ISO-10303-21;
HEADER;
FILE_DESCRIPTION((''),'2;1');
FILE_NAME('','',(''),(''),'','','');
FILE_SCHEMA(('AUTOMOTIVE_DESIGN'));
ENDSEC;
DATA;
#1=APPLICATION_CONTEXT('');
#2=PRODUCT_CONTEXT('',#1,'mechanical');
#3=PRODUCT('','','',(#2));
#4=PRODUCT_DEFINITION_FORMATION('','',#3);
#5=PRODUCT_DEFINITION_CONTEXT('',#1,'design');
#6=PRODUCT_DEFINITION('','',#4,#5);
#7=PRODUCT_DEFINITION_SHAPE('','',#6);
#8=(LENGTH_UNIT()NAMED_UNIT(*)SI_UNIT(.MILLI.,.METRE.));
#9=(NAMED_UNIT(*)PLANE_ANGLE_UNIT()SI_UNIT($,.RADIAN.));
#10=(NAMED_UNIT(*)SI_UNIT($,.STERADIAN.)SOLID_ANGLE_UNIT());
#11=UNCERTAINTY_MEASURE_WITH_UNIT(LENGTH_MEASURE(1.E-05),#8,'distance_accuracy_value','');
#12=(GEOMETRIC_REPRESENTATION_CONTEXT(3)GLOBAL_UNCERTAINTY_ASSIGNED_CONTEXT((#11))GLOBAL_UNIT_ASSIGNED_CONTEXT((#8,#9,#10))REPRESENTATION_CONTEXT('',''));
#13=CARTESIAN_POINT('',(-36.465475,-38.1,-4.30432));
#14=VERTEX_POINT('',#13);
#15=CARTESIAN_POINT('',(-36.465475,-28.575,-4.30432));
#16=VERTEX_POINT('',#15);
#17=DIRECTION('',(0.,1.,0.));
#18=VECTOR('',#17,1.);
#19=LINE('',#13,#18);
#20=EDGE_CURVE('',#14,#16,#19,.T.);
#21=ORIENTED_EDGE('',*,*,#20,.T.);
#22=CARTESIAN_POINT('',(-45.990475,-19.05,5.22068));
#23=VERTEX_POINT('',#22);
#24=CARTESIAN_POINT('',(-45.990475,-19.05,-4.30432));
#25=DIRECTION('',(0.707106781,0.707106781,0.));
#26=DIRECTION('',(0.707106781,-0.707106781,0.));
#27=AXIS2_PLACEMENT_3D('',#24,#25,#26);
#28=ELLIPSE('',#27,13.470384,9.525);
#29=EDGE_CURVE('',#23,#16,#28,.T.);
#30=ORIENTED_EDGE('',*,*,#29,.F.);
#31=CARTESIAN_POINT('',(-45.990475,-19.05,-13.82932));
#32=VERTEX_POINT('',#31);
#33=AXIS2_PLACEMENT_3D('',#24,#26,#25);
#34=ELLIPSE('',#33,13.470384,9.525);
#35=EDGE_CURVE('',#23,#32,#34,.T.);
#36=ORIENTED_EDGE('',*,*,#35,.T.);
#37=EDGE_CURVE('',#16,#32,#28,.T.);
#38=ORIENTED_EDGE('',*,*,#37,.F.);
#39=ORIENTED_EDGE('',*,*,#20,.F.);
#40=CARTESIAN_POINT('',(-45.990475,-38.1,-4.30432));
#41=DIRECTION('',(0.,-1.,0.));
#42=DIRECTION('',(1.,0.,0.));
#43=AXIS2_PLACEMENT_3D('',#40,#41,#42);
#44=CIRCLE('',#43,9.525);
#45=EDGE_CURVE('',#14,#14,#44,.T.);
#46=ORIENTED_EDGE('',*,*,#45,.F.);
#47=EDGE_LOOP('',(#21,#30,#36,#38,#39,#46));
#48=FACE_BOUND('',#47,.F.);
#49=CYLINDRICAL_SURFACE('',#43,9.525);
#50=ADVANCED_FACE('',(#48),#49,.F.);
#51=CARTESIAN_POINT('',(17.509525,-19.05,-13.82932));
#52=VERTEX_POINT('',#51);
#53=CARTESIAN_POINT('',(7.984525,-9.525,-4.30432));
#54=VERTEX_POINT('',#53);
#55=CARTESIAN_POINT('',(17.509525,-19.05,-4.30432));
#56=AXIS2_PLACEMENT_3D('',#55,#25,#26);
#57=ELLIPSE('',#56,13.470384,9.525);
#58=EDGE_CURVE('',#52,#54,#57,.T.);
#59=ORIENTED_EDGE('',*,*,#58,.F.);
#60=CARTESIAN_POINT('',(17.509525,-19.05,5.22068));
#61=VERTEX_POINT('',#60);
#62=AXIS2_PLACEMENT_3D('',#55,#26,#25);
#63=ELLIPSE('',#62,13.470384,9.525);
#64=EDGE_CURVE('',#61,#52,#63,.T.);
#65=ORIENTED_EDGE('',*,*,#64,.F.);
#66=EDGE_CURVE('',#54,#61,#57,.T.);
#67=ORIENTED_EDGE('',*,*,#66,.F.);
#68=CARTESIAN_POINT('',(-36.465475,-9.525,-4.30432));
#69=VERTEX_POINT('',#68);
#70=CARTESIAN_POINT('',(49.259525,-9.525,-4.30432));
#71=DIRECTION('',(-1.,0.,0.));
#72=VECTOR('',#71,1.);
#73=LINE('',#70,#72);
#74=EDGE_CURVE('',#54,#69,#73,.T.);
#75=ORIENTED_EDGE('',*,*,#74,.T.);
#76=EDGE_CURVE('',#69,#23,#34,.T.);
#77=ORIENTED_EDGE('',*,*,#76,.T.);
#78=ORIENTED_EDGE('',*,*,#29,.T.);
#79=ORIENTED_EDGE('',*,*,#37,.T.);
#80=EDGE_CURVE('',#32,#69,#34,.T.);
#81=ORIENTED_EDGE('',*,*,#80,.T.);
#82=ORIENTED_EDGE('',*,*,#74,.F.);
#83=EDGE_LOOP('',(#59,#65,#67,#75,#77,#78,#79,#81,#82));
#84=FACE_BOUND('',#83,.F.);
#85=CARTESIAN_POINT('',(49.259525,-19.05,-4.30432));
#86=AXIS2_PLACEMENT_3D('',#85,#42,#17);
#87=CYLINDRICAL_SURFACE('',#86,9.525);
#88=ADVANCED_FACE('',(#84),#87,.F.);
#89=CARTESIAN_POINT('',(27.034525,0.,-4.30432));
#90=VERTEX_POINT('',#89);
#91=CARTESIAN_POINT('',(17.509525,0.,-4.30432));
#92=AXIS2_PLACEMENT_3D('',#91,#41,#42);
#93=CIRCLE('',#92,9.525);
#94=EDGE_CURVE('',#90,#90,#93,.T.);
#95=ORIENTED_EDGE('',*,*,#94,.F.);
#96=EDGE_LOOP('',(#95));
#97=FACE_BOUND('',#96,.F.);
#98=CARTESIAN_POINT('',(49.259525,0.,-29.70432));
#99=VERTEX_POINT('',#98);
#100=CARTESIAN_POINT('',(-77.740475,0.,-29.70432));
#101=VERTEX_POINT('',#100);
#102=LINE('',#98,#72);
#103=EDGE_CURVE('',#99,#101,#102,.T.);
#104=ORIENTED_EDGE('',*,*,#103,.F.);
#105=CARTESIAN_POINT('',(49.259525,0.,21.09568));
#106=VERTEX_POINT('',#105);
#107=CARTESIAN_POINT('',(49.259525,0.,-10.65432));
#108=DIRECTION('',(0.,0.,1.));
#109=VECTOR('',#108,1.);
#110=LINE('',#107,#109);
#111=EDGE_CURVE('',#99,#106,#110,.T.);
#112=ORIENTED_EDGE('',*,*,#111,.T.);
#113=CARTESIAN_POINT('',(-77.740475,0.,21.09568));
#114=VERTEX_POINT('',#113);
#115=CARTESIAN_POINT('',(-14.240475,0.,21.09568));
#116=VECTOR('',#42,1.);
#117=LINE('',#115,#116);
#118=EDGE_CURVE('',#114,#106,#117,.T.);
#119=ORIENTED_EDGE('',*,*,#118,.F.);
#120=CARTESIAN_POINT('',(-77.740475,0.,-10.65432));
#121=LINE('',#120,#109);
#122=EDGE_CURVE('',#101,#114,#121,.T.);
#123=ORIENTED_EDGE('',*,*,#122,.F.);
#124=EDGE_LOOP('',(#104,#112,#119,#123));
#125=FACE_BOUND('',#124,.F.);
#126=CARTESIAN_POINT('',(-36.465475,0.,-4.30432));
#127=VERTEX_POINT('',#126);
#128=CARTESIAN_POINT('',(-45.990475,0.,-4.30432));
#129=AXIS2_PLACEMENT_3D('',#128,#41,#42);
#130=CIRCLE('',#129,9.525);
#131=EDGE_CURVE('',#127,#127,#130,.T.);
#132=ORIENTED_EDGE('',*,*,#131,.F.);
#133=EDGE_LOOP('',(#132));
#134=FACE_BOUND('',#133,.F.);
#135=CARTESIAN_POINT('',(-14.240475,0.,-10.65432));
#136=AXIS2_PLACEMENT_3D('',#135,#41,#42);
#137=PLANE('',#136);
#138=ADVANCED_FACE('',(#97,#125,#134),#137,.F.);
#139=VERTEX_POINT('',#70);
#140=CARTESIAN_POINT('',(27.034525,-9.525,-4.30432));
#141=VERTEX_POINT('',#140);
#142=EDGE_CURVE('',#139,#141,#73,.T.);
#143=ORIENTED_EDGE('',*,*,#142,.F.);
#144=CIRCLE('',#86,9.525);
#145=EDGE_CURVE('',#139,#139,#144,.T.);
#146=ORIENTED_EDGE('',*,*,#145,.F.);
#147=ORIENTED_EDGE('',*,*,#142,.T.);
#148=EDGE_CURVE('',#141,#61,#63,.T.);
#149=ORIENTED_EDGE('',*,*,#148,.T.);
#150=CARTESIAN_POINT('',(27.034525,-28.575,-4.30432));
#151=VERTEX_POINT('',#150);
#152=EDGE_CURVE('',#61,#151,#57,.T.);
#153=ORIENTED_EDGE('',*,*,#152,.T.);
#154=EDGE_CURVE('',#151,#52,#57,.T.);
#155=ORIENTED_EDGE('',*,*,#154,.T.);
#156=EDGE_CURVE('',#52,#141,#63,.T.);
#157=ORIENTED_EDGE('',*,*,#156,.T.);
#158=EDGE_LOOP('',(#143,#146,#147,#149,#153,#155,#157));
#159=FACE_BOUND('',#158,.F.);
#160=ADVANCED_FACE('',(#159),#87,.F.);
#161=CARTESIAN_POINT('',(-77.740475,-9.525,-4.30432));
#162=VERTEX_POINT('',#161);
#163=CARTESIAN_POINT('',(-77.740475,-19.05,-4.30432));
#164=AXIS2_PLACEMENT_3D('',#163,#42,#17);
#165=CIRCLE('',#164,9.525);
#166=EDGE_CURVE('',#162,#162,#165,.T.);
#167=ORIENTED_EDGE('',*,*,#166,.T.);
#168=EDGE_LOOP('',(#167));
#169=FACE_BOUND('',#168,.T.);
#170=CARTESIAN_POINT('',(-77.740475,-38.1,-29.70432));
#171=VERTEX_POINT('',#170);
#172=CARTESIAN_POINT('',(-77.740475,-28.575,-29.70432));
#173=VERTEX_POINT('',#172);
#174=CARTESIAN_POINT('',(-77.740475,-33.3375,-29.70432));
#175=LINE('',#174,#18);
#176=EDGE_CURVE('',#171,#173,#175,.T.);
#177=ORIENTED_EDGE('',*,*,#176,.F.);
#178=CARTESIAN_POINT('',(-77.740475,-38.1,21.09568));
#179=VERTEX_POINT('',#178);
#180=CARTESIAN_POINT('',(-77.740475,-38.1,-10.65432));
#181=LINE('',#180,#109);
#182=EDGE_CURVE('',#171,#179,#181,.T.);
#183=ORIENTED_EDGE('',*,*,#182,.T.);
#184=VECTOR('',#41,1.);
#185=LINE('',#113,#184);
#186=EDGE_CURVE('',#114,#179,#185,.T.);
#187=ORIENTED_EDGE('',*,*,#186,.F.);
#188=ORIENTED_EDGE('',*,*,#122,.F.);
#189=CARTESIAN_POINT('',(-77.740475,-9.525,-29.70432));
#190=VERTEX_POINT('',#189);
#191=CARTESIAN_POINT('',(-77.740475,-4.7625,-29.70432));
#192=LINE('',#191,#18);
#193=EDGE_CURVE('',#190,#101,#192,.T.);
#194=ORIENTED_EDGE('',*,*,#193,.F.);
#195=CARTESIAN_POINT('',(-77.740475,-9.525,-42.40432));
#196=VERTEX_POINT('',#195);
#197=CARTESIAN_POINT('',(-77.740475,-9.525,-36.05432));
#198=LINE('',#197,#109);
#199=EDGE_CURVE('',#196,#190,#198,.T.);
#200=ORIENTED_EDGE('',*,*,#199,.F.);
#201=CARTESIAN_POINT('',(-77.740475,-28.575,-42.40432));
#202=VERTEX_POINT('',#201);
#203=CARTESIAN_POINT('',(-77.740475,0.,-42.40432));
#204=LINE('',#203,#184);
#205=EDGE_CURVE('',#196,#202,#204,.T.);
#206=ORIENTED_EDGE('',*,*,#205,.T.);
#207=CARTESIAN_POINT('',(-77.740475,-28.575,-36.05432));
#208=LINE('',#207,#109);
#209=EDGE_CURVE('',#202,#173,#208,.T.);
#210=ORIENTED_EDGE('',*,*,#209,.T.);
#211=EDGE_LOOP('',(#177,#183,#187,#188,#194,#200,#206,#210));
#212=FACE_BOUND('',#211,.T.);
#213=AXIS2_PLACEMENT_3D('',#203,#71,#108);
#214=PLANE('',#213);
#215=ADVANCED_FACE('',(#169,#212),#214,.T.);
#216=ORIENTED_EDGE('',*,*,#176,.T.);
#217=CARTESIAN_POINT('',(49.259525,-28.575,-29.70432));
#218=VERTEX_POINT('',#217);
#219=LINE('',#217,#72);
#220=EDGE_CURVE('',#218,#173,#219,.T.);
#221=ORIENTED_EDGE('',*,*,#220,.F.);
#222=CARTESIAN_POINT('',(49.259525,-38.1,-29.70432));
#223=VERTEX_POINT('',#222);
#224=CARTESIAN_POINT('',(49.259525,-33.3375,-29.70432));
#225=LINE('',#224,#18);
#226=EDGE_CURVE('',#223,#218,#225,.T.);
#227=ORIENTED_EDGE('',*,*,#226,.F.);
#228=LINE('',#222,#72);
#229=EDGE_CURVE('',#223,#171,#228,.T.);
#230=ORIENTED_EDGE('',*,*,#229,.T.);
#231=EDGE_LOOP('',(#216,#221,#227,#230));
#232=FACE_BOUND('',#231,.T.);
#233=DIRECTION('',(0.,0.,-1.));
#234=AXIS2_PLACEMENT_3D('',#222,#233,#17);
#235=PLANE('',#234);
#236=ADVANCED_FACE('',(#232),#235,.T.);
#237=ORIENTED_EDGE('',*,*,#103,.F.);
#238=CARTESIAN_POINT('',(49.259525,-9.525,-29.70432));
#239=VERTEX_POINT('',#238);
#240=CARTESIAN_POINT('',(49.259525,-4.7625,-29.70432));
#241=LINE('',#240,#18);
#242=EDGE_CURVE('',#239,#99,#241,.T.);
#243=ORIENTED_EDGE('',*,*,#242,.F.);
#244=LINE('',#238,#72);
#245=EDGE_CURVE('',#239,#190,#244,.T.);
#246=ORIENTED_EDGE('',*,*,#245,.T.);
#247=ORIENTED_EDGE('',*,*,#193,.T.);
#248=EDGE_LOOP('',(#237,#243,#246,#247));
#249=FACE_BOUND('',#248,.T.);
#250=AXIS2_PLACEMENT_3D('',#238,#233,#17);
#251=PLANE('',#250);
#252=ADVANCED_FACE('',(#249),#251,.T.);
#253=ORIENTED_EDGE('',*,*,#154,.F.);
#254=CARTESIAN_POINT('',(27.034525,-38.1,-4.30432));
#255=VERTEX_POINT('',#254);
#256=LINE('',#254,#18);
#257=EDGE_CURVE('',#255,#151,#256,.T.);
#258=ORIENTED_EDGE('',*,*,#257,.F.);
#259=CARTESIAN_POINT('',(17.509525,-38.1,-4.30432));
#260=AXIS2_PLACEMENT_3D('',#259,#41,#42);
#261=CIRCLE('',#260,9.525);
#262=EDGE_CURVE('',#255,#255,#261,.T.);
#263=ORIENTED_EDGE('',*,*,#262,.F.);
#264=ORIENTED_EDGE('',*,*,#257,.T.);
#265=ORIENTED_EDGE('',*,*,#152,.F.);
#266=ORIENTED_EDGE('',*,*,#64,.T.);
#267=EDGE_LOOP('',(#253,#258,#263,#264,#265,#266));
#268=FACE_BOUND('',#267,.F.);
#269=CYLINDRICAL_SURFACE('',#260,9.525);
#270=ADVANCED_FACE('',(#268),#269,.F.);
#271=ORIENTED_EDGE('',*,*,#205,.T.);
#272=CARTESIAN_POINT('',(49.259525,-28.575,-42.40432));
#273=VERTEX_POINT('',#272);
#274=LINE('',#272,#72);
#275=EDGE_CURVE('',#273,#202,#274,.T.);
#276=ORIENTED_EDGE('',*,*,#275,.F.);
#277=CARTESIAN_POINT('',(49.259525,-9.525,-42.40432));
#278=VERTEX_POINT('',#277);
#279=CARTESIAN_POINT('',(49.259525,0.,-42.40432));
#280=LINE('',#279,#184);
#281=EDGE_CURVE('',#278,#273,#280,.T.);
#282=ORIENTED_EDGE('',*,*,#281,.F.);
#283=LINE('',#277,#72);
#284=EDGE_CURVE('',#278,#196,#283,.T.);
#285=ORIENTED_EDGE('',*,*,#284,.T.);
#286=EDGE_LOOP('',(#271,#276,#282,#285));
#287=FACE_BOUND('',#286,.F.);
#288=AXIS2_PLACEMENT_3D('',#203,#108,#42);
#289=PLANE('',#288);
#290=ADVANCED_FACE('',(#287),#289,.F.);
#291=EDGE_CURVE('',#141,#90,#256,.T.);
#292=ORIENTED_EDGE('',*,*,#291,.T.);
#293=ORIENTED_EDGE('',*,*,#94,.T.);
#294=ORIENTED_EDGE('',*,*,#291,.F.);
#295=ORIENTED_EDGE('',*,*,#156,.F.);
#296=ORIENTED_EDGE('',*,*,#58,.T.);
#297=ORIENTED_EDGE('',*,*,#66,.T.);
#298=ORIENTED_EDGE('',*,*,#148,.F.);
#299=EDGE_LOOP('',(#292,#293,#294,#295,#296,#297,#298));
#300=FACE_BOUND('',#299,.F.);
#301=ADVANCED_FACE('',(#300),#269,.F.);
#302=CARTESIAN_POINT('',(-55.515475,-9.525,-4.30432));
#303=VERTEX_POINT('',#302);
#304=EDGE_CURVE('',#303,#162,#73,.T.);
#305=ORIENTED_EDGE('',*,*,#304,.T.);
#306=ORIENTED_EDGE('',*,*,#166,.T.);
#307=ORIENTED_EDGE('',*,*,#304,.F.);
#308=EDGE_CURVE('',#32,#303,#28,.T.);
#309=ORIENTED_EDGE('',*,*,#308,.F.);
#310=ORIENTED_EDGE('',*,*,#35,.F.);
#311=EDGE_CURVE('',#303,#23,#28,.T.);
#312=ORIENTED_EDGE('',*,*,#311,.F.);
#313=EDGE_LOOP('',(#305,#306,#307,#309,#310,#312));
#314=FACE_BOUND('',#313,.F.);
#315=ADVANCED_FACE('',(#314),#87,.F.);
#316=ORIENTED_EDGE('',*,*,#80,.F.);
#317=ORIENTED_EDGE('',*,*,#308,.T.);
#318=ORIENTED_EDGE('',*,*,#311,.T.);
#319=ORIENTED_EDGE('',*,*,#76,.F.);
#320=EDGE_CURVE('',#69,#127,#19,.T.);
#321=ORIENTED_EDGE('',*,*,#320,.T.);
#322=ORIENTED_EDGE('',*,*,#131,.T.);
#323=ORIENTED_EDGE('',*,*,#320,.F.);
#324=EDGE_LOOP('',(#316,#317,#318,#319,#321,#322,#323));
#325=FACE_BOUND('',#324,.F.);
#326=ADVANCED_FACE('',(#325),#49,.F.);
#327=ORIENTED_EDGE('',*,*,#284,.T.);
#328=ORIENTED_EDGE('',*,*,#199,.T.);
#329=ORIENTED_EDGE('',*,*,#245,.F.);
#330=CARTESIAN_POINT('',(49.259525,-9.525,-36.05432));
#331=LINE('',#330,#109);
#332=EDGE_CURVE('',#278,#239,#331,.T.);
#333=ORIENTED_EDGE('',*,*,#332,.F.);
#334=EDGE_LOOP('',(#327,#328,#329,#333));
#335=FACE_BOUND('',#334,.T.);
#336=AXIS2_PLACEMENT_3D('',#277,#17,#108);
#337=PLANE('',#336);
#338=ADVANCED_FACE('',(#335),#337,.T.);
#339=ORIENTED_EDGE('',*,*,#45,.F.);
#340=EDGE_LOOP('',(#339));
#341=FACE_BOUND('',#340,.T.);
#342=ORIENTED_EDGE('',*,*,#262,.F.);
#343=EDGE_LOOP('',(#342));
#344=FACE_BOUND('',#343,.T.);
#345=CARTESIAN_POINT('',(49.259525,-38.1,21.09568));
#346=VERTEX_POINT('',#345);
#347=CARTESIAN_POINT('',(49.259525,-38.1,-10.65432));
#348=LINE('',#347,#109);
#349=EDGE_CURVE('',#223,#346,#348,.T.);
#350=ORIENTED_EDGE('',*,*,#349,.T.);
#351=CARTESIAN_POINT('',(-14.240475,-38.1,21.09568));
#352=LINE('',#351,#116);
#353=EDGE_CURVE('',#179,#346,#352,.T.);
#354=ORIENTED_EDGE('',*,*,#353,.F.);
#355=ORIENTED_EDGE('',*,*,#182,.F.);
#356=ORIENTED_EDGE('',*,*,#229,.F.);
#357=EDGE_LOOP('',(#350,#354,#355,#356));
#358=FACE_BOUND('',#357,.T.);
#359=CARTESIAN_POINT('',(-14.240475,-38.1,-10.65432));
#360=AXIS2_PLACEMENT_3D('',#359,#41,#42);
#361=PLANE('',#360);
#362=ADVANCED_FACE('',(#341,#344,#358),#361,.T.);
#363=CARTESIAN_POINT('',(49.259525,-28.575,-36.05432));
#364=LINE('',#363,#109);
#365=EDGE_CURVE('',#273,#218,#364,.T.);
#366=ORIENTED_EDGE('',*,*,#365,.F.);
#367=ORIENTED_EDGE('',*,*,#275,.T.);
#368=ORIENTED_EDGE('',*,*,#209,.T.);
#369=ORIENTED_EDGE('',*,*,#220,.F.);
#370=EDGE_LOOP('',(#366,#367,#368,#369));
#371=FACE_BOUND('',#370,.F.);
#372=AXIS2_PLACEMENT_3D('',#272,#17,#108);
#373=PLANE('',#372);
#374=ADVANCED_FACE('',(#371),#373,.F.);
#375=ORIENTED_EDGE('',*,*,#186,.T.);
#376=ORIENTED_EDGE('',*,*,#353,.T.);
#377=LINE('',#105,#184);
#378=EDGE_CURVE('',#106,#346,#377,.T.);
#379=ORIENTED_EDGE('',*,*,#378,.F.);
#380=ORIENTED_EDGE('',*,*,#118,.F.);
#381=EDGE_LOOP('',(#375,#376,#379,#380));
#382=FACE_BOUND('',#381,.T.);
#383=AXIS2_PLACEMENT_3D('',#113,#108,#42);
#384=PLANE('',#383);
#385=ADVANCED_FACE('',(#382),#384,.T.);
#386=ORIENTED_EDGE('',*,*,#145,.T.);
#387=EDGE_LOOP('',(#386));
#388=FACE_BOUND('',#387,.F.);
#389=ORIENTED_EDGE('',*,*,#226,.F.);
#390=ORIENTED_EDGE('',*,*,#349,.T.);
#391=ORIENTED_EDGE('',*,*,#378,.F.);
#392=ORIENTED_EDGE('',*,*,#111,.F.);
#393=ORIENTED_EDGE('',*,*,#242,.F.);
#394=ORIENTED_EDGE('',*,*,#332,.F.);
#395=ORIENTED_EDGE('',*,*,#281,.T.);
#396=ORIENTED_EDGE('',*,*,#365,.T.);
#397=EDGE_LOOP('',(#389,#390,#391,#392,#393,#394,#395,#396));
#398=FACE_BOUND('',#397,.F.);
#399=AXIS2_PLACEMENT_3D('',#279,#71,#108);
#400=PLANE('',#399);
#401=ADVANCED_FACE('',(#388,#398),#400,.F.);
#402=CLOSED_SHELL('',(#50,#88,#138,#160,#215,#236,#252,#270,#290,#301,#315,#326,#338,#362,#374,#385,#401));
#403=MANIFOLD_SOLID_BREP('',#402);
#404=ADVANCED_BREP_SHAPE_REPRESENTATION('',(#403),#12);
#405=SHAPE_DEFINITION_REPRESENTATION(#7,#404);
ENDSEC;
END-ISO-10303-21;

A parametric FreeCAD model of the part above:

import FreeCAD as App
import Part
import Sketcher
from FreeCAD import Vector
Q = App.Units.Quantity


def add_polygon(sketch, points):
    """Adds a closed chain of lines whose ends are joined by coincident constraints."""
    first, n = sketch.GeometryCount, len(points)
    for a, b in zip(points, points[1:] + points[:1]):
        sketch.addGeometry(Part.LineSegment(App.Vector(*a, 0), App.Vector(*b, 0)), False)
    for i in range(n):
        sketch.addConstraint(Sketcher.Constraint("Coincident", first + i, 2, first + (i + 1) % n, 1))

doc = App.newDocument("Part")
body = doc.addObject("PartDesign::Body", "Body")

sketch1 = body.newObject("Sketcher::SketchObject", "Sketch")
sketch1.AttachmentSupport = (doc.getObject("XZ_Plane"), [""])
sketch1.MapMode = "FlatFace"
add_polygon(sketch1, [(-78, 21), (-78, -42), (49, -42), (49, 21)])
sketch1.addConstraint([
    Sketcher.Constraint("Vertical", 0),
    Sketcher.Constraint("Horizontal", 1),
    Sketcher.Constraint("Vertical", 2),
    Sketcher.Constraint("Horizontal", 3),
    Sketcher.Constraint("DistanceX", 1, 1, 1, 2, Q("5 in")),
    Sketcher.Constraint("DistanceY", 0, 2, 0, 1, Q("2.5 in")),
    Sketcher.Constraint("DistanceY", 0, 2, -1, 1, 42.40432),
    Sketcher.Constraint("DistanceX", 0, 2, -1, 1, 77.740475),
])
pad1 = body.newObject("PartDesign::Pad", "Pad")
pad1.Profile = sketch1
pad1.Length = Q("1.5 in")

sketch2 = body.newObject("Sketcher::SketchObject", "Sketch001")
sketch2.AttachmentSupport = (doc.getObject("YZ_Plane"), [""])
sketch2.MapMode = "FlatFace"
sketch2.AttachmentOffset = App.Placement(Vector(0, 0, 49.259525), App.Rotation())
add_polygon(sketch2, [(-38, -30), (-38, -42), (-29, -42), (-29, -30)])
sketch2.addConstraint([
    Sketcher.Constraint("Vertical", 0),
    Sketcher.Constraint("Horizontal", 1),
    Sketcher.Constraint("Vertical", 2),
    Sketcher.Constraint("Horizontal", 3),
    Sketcher.Constraint("DistanceY", 0, 2, 0, 1, Q("0.5 in")),
    Sketcher.Constraint("DistanceX", 0, 2, -1, 1, Q("1.5 in")),
    Sketcher.Constraint("DistanceX", 1, 1, 1, 2, Q("0.375 in")),
    Sketcher.Constraint("DistanceY", 0, 2, -1, 1, 42.40432),
])
pocket1 = body.newObject("PartDesign::Pocket", "Pocket")
pocket1.Profile = sketch2
pocket1.Length = Q("5 in")

sketch3 = body.newObject("Sketcher::SketchObject", "Sketch002")
sketch3.AttachmentSupport = (doc.getObject("YZ_Plane"), [""])
sketch3.MapMode = "FlatFace"
sketch3.AttachmentOffset = App.Placement(Vector(0, 0, 49.259525), App.Rotation())
add_polygon(sketch3, [(-10, -30), (-10, -42), (0, -42), (0, -30)])
sketch3.addConstraint([
    Sketcher.Constraint("Vertical", 0),
    Sketcher.Constraint("Horizontal", 1),
    Sketcher.Constraint("Vertical", 2),
    Sketcher.Constraint("Horizontal", 3),
    Sketcher.Constraint("PointOnObject", 1, 2, -2),
    Sketcher.Constraint("DistanceY", 0, 2, 0, 1, Q("0.5 in")),
    Sketcher.Constraint("DistanceX", 1, 1, 1, 2, Q("0.375 in")),
    Sketcher.Constraint("DistanceY", 0, 2, -1, 1, 42.40432),
])
pocket2 = body.newObject("PartDesign::Pocket", "Pocket001")
pocket2.Profile = sketch3
pocket2.Length = Q("5 in")

sketch4 = body.newObject("Sketcher::SketchObject", "Sketch003")
sketch4.AttachmentSupport = (doc.getObject("YZ_Plane"), [""])
sketch4.MapMode = "FlatFace"
sketch4.AttachmentOffset = App.Placement(Vector(0, 0, 49.259525), App.Rotation())
sketch4.addGeometry(Part.Circle(Vector(-19, -4, 0), Vector(0, 0, 1), 10), False)
sketch4.addConstraint([
    Sketcher.Constraint("Diameter", 0, Q("0.75 in")),
    Sketcher.Constraint("DistanceX", 0, 3, -1, 1, Q("0.75 in")),
    Sketcher.Constraint("DistanceY", 0, 3, -1, 1, 4.30432),
])
pocket3 = body.newObject("PartDesign::Pocket", "Pocket002")
pocket3.Profile = sketch4
pocket3.Length = Q("5 in")

sketch5 = body.newObject("Sketcher::SketchObject", "Sketch004")
sketch5.AttachmentSupport = (doc.getObject("XZ_Plane"), [""])
sketch5.MapMode = "FlatFace"
sketch5.AttachmentOffset = App.Placement(Vector(0, 0, 1.5 * 25.4), App.Rotation())
sketch5.addGeometry([
    Part.Circle(Vector(-46, -4, 0), Vector(0, 0, 1), 10),
    Part.Circle(Vector(18, -4, 0), Vector(0, 0, 1), 10),
], False)
sketch5.addConstraint([
    Sketcher.Constraint("Equal", 0, 1),
    Sketcher.Constraint("Horizontal", 0, 3, 1, 3),
    Sketcher.Constraint("Diameter", 0, Q("0.75 in")),
    Sketcher.Constraint("DistanceX", 0, 3, 1, 3, Q("2.5 in")),
    Sketcher.Constraint("DistanceY", 0, 3, -1, 1, 4.30432),
    Sketcher.Constraint("DistanceX", 0, 3, -1, 1, 45.990475),
])
pocket4 = body.newObject("PartDesign::Pocket", "Pocket003")
pocket4.Profile = sketch5
pocket4.Length = Q("1.5 in")

doc.recompute()
